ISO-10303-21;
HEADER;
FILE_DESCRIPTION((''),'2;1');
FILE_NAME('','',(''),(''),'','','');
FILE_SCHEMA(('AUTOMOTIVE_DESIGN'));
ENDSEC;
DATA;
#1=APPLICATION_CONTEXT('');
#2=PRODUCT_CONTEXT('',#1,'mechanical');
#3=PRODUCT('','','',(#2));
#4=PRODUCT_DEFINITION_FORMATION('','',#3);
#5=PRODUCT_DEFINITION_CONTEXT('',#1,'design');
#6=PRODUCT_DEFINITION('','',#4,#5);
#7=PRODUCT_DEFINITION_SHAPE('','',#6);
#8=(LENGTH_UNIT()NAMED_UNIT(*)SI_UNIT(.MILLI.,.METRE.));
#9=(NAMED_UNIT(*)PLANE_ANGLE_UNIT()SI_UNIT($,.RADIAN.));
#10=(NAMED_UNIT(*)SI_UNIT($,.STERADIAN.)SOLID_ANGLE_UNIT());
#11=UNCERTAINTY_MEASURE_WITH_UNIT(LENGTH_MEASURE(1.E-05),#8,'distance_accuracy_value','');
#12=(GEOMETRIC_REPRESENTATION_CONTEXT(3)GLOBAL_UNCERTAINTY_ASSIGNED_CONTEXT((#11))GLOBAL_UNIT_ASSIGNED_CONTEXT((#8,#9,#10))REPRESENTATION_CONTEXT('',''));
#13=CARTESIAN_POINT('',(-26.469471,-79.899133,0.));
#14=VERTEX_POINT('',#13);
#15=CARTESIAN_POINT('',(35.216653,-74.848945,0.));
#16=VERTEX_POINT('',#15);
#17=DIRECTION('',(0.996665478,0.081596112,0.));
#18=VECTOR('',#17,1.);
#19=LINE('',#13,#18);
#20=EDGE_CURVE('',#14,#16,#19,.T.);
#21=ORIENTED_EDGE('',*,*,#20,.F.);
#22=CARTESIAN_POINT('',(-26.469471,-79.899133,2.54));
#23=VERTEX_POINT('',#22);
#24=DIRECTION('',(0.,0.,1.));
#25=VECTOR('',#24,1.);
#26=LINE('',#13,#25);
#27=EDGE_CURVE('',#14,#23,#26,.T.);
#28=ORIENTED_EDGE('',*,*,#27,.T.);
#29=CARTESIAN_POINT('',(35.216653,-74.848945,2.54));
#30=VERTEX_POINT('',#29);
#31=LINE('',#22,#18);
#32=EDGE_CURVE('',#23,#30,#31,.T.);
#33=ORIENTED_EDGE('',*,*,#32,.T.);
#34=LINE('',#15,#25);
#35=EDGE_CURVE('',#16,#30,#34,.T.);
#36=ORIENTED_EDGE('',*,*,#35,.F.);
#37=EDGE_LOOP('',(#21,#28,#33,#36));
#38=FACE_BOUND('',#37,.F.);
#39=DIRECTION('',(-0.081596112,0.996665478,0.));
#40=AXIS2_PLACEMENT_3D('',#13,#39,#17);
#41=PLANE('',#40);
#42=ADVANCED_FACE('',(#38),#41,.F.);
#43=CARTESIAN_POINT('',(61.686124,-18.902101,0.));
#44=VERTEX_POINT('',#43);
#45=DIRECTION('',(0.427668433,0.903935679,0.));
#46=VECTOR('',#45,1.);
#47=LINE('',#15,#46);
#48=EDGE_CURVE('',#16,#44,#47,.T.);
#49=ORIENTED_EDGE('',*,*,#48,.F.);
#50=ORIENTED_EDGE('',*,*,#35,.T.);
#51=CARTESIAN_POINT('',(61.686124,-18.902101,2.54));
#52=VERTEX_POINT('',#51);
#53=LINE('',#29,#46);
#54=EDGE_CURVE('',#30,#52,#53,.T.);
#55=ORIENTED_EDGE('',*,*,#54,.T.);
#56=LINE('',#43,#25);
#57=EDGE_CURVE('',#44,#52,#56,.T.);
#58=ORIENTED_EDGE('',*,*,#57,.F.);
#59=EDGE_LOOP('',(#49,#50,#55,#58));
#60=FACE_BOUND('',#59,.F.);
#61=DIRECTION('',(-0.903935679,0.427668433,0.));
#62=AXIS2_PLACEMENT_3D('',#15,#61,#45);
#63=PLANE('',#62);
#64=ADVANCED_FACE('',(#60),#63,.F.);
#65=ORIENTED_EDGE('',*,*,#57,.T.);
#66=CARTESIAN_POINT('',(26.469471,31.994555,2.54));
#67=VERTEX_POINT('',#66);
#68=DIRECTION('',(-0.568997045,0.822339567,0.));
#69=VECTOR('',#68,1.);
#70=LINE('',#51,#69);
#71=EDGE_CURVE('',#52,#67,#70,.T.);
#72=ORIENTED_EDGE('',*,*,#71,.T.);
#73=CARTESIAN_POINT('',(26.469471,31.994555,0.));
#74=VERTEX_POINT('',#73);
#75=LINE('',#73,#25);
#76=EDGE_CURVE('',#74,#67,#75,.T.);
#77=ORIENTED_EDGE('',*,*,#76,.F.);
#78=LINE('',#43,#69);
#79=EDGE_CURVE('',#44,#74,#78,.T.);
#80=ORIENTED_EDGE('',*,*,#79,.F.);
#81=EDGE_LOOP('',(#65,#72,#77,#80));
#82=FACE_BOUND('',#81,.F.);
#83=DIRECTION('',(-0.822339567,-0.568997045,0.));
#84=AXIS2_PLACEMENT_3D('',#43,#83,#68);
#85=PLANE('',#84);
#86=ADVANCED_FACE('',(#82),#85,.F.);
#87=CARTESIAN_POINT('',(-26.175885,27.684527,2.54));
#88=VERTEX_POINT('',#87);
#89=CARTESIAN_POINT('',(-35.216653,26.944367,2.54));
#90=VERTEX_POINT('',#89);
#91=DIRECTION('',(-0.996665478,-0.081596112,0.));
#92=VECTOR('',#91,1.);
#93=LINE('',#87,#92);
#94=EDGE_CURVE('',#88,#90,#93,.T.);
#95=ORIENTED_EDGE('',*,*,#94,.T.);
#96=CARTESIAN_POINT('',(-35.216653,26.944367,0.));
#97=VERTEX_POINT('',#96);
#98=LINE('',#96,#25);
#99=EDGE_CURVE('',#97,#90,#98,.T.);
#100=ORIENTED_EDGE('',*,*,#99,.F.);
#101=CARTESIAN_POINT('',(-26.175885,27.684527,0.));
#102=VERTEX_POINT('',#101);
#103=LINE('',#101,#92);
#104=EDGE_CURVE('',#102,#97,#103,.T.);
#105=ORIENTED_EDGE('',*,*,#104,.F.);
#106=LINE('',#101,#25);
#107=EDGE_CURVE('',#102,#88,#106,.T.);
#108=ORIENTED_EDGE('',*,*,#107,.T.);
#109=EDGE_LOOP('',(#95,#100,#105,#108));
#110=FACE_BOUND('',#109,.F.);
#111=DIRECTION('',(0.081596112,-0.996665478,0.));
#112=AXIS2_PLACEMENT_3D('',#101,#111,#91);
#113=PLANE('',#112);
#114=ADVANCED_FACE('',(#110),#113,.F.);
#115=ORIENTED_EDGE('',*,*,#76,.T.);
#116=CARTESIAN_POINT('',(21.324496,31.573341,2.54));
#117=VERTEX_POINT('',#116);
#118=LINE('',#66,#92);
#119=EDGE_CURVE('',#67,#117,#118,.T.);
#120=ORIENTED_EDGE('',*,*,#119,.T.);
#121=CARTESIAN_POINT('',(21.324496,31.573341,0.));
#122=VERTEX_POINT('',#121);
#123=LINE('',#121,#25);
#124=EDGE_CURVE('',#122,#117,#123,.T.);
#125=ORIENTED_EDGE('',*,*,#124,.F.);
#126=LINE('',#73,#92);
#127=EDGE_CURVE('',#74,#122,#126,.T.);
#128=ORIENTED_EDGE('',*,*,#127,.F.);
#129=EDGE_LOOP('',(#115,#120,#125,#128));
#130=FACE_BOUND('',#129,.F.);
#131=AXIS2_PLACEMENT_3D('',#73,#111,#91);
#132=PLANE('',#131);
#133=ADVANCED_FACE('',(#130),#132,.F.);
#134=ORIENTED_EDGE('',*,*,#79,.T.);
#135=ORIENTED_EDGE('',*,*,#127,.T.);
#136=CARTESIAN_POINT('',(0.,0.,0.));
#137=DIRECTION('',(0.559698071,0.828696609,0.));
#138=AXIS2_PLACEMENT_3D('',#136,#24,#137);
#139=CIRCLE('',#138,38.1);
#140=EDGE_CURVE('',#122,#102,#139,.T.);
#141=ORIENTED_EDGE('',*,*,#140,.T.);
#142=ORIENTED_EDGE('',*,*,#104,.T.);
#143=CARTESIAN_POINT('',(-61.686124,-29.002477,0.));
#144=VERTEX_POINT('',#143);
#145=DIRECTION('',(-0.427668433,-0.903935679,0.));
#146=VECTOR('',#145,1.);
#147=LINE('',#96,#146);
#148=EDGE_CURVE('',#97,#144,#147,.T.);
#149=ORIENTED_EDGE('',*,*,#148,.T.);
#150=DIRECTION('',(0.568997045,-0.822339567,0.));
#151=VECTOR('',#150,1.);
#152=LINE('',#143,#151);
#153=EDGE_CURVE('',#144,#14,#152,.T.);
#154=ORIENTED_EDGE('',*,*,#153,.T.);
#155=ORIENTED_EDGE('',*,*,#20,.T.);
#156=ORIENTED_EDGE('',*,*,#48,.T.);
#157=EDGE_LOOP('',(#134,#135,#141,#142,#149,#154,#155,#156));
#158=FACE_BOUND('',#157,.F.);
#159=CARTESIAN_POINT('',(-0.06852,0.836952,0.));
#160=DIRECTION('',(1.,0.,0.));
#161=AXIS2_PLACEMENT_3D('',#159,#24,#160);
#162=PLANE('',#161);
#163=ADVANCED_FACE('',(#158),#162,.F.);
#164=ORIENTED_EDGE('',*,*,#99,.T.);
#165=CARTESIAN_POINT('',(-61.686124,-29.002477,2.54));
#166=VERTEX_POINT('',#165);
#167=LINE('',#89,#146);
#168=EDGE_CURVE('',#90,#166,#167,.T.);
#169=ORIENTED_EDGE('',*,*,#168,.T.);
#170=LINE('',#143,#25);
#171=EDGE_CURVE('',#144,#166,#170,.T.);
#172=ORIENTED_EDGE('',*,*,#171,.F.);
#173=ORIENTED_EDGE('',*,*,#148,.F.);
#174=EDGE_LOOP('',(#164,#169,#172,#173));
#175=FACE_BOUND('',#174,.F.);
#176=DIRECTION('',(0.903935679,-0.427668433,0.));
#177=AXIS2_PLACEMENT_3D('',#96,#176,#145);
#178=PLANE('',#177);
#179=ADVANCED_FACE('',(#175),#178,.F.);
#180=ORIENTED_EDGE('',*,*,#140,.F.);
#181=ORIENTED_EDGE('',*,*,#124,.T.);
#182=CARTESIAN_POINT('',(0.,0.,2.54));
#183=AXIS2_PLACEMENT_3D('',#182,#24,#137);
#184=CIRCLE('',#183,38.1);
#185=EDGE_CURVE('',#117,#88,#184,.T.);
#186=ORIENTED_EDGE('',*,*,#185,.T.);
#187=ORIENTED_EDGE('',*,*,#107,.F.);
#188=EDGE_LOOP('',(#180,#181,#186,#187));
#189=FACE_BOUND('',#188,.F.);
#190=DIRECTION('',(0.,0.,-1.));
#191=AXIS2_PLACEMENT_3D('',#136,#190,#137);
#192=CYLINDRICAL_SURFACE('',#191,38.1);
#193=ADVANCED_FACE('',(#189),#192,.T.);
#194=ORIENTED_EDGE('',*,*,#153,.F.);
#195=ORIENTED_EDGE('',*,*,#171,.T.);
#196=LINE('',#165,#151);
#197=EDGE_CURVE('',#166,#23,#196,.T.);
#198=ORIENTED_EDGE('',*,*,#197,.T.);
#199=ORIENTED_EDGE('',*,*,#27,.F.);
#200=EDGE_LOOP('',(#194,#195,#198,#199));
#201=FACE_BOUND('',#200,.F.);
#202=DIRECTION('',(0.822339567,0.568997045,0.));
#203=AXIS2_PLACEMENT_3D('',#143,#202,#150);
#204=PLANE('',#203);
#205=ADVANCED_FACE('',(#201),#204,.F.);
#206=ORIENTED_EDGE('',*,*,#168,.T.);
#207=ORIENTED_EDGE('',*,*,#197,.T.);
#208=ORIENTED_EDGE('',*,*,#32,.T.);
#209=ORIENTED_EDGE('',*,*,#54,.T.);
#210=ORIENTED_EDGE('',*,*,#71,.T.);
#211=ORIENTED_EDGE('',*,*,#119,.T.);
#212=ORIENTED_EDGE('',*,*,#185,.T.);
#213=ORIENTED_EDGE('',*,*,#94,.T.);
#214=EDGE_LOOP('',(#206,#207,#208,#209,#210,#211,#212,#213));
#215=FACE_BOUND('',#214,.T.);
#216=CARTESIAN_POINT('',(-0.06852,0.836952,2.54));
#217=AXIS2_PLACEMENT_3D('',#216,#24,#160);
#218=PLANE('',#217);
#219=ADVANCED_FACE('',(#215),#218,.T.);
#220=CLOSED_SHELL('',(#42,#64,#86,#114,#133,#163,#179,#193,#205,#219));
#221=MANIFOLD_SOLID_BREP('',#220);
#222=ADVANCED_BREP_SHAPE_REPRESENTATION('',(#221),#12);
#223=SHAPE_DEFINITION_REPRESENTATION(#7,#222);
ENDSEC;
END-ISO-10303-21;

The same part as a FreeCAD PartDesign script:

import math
import FreeCAD as App
import Part
import Sketcher

V = App.Vector
Q = App.Units.Quantity

doc = App.newDocument("Part")
params = doc.addObject("Spreadsheet::Sheet", "Params")
for row, (alias, value) in enumerate([
    ("sketch1_radius", "1.5 in"),
    ("pad1_length", "0.1 in"),
], start=1):
    params.set(f"A{row}", alias)
    params.set(f"B{row}", "=" + value)
    params.setAlias(f"B{row}", alias)

body = doc.addObject("PartDesign::Body", "Body")

sketch1 = body.newObject("Sketcher::SketchObject", "Sketch")
sketch1.AttachmentSupport = (doc.getObject("XY_Plane"), [""])
sketch1.MapMode = "FlatFace"
sketch1.addGeometry(Part.LineSegment(V(-26, 28, 0), V(-35, 27, 0)), False)
sketch1.addGeometry(Part.LineSegment(V(-35, 27, 0), V(-62, -29, 0)), False)
sketch1.addGeometry(Part.LineSegment(V(-62, -29, 0), V(-26, -80, 0)), False)
sketch1.addGeometry(Part.LineSegment(V(-26, -80, 0), V(35, -75, 0)), False)
sketch1.addGeometry(Part.LineSegment(V(35, -75, 0), V(62, -19, 0)), False)
sketch1.addGeometry(Part.LineSegment(V(62, -19, 0), V(26, 32, 0)), False)
sketch1.addGeometry(Part.LineSegment(V(26, 32, 0), V(21, 32, 0)), False)
sketch1.addGeometry(Part.ArcOfCircle(Part.Circle(V(0, 0, 0), V(0, 0, 1), 38), math.radians(56), math.radians(133)), False)
sketch1.addConstraint(Sketcher.Constraint("Coincident", 0, 2, 1, 1))
sketch1.addConstraint(Sketcher.Constraint("Coincident", 1, 2, 2, 1))
sketch1.addConstraint(Sketcher.Constraint("Coincident", 2, 2, 3, 1))
sketch1.addConstraint(Sketcher.Constraint("Coincident", 3, 2, 4, 1))
sketch1.addConstraint(Sketcher.Constraint("Coincident", 4, 2, 5, 1))
sketch1.addConstraint(Sketcher.Constraint("Coincident", 5, 2, 6, 1))
sketch1.addConstraint(Sketcher.Constraint("Coincident", 6, 2, 7, 1))
sketch1.addConstraint(Sketcher.Constraint("Coincident", 7, 2, 0, 1))
sketch1.addConstraint(Sketcher.Constraint("Coincident", 7, 3, -1, 1))
sketch1.addConstraint(Sketcher.Constraint("Parallel", 0, 3))
sketch1.addConstraint(Sketcher.Constraint("Parallel", 1, 4))
sketch1.addConstraint(Sketcher.Constraint("Parallel", 2, 5))
sketch1.addConstraint(Sketcher.Constraint("Parallel", 3, 6))
sketch1.addConstraint(Sketcher.Constraint("Equal", 1, 2))
sketch1.addConstraint(Sketcher.Constraint("Equal", 2, 3))
sketch1.addConstraint(Sketcher.Constraint("Equal", 3, 4))
sketch1.addConstraint(Sketcher.Constraint("Equal", 4, 5))
sketch1.addConstraint(Sketcher.Constraint("Radius", 7, Q("1.5 in")))
sketch1.addConstraint(Sketcher.Constraint("DistanceY", 4, 2, -1, 1, 18.902101))
sketch1.addConstraint(Sketcher.Constraint("DistanceY", 2, 2, 0, 2, 106.8435))
sketch1.addConstraint(Sketcher.Constraint("DistanceX", 2, 2, -1, 1, 26.469471))
sketch1.addConstraint(Sketcher.Constraint("DistanceX", -1, 1, 5, 2, 26.469471))
sketch1.addConstraint(Sketcher.Constraint("DistanceY", -1, 1, 6, 2, 31.573341))
sketch1.addConstraint(Sketcher.Constraint("DistanceX", 1, 2, 0, 2, 26.469471))
sketch1.setExpression("Constraints[17]", "Params.sketch1_radius")
pad1 = body.newObject("PartDesign::Pad", "Pad")
pad1.Profile = sketch1
pad1.setExpression("Length", "Params.pad1_length")

doc.recompute()
